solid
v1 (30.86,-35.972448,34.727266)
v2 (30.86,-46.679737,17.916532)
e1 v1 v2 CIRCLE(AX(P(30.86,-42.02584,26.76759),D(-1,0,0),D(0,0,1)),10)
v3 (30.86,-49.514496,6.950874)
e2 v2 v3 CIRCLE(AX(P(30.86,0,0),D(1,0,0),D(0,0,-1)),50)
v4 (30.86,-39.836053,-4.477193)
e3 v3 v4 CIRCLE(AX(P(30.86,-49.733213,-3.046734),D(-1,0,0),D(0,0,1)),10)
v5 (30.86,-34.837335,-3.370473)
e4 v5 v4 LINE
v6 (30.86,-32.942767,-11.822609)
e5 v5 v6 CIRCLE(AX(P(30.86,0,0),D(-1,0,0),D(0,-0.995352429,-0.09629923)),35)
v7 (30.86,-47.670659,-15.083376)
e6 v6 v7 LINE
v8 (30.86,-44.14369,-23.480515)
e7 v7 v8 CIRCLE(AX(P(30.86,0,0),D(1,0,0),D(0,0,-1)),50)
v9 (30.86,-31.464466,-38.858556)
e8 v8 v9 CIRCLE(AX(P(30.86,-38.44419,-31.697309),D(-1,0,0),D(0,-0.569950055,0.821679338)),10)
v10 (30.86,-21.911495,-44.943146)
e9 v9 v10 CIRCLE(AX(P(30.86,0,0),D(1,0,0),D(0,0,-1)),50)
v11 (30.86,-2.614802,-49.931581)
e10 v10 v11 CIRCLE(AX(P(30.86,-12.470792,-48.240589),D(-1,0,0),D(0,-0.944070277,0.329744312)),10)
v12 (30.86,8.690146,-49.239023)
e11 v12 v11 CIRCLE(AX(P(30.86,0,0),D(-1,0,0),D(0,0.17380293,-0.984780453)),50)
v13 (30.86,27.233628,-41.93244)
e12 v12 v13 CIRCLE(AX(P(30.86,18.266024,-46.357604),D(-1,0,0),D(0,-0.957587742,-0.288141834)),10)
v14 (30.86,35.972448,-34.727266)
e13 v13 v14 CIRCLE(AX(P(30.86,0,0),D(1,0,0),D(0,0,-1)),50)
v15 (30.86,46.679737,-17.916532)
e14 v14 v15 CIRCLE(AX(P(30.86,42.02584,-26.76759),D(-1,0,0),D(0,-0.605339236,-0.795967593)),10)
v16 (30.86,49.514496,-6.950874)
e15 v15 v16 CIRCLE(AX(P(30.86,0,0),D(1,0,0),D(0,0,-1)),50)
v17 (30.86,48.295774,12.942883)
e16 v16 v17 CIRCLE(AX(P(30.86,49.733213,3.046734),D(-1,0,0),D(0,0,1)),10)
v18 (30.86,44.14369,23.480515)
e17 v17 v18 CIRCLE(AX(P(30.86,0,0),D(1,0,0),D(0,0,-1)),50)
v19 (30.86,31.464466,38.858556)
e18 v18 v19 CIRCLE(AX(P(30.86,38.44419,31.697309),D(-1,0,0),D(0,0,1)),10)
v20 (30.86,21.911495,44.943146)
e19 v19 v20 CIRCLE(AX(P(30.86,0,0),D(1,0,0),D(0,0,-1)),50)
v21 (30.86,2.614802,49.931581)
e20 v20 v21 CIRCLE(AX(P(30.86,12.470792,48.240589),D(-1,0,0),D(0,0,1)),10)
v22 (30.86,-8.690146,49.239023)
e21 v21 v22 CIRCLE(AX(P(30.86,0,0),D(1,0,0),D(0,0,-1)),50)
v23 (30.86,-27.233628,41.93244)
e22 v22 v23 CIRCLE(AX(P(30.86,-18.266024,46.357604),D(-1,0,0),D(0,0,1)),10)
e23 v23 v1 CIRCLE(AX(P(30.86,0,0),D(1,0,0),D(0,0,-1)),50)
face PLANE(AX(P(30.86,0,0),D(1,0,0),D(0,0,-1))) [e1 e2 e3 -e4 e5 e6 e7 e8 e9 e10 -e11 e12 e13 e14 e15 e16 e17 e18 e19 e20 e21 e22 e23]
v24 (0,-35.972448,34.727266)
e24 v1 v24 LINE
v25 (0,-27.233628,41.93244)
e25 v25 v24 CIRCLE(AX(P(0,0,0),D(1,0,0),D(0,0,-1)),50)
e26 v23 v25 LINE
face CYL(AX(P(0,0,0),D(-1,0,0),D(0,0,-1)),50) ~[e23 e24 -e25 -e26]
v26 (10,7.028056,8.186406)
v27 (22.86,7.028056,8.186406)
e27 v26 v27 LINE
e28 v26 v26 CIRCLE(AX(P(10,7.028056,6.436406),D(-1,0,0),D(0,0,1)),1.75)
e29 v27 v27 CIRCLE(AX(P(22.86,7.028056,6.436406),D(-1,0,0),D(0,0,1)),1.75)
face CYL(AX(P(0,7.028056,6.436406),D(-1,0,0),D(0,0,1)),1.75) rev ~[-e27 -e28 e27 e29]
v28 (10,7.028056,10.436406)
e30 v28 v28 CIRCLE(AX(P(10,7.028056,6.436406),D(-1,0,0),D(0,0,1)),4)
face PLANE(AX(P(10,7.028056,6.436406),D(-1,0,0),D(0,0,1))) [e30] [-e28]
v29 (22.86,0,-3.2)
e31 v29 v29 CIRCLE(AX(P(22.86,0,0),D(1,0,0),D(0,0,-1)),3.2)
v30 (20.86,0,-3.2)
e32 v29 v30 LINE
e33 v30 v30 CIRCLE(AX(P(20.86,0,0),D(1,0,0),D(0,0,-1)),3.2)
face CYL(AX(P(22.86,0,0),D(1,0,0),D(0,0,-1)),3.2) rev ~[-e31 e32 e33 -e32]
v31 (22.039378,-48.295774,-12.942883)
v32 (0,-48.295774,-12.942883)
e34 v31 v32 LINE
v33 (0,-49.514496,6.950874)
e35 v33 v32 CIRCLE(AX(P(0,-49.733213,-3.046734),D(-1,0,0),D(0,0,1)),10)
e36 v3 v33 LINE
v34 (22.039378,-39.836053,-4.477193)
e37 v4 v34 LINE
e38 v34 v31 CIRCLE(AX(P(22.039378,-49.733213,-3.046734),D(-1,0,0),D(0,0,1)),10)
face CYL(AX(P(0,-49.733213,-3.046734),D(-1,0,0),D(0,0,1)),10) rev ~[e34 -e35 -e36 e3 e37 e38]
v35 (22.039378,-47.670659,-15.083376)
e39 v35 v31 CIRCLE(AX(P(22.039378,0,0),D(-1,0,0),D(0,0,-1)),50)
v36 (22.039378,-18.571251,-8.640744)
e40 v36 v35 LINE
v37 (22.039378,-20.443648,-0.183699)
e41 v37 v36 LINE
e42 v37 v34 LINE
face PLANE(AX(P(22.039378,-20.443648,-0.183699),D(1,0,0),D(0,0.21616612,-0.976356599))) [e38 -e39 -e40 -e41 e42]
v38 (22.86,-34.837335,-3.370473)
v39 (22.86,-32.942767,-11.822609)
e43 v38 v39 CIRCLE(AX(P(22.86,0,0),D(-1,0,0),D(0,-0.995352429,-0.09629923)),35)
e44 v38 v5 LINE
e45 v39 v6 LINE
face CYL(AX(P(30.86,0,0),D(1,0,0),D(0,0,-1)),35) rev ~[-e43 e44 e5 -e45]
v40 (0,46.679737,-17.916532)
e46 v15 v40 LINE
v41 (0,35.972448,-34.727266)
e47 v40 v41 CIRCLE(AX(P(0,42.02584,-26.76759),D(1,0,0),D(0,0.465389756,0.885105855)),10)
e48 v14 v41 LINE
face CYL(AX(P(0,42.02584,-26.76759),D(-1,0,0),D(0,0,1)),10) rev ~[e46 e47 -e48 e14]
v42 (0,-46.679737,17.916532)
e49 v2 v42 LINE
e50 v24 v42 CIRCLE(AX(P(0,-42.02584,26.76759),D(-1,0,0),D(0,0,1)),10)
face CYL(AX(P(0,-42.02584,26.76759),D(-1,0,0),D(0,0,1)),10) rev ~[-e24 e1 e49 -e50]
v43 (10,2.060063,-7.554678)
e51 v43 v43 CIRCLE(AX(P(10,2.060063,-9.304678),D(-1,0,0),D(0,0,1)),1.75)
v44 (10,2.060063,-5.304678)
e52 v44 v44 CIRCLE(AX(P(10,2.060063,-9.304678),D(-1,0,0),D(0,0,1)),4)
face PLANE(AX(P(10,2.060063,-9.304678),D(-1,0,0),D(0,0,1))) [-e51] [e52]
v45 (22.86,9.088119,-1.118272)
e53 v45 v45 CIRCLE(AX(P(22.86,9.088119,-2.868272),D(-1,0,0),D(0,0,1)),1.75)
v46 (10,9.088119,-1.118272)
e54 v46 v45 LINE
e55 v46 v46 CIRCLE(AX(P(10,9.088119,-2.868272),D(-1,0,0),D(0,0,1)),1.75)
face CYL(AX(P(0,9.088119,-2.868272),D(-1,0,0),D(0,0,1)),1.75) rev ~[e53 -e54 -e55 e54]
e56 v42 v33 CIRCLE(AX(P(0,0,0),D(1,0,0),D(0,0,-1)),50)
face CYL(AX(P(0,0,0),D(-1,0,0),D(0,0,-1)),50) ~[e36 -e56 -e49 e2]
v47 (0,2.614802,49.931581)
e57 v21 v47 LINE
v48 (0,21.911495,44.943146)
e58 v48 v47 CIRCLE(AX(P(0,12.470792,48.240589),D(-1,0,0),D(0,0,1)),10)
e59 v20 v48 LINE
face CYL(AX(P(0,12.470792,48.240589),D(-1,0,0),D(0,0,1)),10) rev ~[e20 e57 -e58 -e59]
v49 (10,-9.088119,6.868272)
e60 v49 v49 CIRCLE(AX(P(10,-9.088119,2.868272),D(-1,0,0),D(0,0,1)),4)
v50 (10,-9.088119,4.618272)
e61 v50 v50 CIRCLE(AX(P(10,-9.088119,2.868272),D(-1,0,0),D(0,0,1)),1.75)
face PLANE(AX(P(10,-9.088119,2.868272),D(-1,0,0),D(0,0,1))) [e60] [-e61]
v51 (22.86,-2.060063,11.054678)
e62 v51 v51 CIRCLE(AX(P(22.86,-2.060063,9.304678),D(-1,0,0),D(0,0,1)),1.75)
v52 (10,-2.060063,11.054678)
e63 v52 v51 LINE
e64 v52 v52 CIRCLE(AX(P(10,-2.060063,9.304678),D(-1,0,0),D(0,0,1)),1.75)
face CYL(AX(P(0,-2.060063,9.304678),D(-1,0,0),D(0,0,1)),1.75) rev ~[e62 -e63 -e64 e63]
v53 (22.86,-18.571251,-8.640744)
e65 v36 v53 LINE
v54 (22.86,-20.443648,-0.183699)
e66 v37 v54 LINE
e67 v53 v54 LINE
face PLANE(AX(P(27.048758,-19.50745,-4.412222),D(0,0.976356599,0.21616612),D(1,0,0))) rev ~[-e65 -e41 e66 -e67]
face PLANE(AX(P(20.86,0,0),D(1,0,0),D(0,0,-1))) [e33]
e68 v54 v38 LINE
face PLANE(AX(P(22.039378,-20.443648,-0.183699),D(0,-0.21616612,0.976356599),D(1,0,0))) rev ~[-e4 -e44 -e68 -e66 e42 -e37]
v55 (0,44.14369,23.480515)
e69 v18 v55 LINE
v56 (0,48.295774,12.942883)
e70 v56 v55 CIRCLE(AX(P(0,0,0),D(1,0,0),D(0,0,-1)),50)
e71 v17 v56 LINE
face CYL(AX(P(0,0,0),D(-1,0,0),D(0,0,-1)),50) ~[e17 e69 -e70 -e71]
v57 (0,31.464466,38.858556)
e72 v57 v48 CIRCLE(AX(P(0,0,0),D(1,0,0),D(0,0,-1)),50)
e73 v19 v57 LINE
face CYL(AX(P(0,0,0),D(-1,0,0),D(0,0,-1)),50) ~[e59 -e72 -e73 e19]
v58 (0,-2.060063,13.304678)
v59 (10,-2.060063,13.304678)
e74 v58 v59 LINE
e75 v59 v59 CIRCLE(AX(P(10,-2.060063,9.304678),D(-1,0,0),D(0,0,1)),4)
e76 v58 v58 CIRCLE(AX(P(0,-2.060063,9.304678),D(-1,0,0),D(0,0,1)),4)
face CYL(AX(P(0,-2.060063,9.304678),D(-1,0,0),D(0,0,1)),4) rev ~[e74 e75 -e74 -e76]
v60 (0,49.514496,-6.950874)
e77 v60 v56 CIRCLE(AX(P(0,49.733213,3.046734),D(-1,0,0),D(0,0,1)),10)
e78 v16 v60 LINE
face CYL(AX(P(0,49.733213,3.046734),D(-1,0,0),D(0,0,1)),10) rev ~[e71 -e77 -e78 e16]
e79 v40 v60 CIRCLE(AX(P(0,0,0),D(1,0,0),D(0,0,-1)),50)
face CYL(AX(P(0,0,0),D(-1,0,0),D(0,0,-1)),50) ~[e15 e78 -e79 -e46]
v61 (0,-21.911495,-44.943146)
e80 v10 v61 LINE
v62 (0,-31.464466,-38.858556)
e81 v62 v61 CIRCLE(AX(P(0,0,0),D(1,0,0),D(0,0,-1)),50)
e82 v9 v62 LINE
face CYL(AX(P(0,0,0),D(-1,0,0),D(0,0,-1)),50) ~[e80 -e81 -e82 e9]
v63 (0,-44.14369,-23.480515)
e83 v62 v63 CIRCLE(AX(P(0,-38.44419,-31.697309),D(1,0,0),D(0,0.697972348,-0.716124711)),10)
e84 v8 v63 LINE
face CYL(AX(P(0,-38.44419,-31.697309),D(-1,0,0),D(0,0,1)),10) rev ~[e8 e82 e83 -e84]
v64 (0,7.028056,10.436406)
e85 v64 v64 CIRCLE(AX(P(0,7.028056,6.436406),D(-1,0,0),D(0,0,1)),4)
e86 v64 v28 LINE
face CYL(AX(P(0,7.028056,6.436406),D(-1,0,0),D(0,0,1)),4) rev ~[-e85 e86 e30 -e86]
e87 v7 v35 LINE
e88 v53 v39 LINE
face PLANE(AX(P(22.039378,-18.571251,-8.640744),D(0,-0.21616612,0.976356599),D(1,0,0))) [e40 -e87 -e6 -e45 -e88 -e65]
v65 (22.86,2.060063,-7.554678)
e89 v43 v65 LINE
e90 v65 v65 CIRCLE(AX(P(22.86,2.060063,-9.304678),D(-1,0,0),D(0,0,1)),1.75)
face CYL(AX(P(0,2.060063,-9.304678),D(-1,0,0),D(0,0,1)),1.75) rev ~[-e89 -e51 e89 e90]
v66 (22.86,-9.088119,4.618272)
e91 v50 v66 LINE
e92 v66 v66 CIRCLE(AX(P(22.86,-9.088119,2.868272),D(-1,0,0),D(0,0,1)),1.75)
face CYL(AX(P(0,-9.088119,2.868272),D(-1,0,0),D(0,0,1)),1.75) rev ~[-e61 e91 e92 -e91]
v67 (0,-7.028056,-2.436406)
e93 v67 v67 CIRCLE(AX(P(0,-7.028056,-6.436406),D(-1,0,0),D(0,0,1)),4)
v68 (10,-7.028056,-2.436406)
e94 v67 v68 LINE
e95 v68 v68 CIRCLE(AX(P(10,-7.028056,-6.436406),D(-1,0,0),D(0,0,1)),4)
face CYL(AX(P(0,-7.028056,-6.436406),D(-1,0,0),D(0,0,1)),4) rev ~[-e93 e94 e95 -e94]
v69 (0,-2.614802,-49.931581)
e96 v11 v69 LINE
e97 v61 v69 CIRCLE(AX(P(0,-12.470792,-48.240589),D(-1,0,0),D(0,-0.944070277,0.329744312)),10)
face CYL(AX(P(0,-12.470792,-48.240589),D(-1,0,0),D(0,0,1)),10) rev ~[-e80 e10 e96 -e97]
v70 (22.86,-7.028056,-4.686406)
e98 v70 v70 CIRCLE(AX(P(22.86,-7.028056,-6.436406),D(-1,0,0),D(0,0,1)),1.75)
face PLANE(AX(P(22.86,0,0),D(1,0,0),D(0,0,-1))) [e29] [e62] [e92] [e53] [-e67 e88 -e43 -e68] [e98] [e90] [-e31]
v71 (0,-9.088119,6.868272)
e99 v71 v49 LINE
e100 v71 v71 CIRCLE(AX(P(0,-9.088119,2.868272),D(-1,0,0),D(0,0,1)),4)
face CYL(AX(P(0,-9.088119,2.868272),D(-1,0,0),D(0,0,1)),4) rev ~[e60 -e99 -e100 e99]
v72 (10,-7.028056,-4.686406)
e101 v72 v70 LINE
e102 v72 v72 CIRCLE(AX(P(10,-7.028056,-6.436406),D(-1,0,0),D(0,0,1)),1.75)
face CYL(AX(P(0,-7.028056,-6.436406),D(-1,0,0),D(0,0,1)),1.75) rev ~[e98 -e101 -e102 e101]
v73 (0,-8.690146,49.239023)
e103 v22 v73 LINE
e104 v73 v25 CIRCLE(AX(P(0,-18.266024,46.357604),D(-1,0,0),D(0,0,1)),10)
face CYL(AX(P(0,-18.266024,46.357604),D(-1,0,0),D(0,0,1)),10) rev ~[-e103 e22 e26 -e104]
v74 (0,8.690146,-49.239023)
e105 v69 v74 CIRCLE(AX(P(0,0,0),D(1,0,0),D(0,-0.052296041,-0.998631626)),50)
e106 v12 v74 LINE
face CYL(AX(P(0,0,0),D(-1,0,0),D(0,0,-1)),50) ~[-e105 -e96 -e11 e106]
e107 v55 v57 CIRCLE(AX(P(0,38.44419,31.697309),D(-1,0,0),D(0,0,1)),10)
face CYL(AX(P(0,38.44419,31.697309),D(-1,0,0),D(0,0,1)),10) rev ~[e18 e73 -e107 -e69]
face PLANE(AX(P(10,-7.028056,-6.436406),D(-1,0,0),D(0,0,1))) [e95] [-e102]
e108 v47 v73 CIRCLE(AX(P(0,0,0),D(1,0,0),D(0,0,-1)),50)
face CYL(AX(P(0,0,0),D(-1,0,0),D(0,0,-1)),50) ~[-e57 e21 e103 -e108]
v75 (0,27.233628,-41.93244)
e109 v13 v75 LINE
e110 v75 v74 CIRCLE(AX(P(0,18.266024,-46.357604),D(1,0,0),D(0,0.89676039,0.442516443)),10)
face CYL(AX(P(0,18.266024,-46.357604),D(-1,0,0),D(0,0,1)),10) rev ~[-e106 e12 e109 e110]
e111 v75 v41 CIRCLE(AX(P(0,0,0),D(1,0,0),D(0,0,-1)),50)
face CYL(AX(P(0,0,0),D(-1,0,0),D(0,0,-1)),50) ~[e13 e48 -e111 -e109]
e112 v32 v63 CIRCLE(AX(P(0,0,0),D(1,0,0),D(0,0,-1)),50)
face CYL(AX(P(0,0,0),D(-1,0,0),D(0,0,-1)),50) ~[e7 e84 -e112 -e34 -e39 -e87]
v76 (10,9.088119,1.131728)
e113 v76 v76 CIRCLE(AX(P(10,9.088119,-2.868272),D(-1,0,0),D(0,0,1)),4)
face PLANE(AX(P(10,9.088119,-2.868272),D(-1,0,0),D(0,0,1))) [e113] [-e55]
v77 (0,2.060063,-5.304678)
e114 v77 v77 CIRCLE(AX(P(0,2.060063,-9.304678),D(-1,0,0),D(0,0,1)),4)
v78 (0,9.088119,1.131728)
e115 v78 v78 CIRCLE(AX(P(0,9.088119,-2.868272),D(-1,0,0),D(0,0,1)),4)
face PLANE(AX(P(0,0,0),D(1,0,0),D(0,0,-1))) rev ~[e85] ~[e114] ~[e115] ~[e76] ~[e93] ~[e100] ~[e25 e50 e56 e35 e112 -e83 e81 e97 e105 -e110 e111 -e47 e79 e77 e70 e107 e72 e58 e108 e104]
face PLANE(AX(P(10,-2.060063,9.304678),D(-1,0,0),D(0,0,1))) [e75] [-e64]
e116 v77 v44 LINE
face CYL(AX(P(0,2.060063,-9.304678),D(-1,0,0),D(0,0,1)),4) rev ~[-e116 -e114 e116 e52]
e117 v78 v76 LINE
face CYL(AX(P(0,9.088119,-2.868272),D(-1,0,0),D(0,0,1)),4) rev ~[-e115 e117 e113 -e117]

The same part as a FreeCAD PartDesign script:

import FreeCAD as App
import Part
import Sketcher

V = App.Vector
Q = App.Units.Quantity


def add_polygon(sketch, points):
    """Adds a closed chain of lines whose ends are joined by coincident constraints."""
    first, n = sketch.GeometryCount, len(points)
    for a, b in zip(points, points[1:] + points[:1]):
        sketch.addGeometry(Part.LineSegment(App.Vector(*a, 0), App.Vector(*b, 0)), False)
    for i in range(n):
        sketch.addConstraint(Sketcher.Constraint("Coincident", first + i, 2, first + (i + 1) % n, 1))

doc = App.newDocument("Part")
body = doc.addObject("PartDesign::Body", "Body")

sketch1 = doc.addObject("Sketcher::SketchObject", "Sketch")
body.addObject(sketch1)
sketch1.AttachmentSupport = (doc.YZ_Plane, [""])
sketch1.MapMode = "FlatFace"
sketch1.addGeometry(Part.Circle(V(0, 0, 0), V(0, 0, 1), 50), False)
sketch1.addConstraint([
    Sketcher.Constraint("Coincident", 0, 3, -1, 1),
    Sketcher.Constraint("Diameter", 0, Q("100 mm")),
])
pad1 = doc.addObject("PartDesign::Pad", "Pad")
body.addObject(pad1)
pad1.Profile = sketch1
pad1.Length = 30.86

sketch2 = doc.addObject("Sketcher::SketchObject", "Sketch001")
body.addObject(sketch2)
sketch2.AttachmentSupport = (doc.YZ_Plane, [""])
sketch2.MapMode = "FlatFace"
sketch2.AttachmentOffset = App.Placement(V(0, 0, 30.86), App.Rotation())
sketch2.addGeometry(Part.Circle(V(0, 0, 0), V(0, 0, 1), 35), False)
sketch2.addConstraint([
    Sketcher.Constraint("Coincident", 0, 3, -1, 1),
    Sketcher.Constraint("Diameter", 0, Q("70 mm")),
])
pocket1 = doc.addObject("PartDesign::Pocket", "Pocket")
body.addObject(pocket1)
pocket1.Profile = sketch2
pocket1.Length = 8

sketch3 = doc.addObject("Sketcher::SketchObject", "Sketch002")
body.addObject(sketch3)
sketch3.Placement = App.Placement(V(0, -19.527132, -4.323322), App.Rotation(V(1, 0, 0), V(0, 0.21616612, -0.976356599), V(0, 0.976356599, 0.21616612), "ZXY"))
add_polygon(sketch3, [(22, 4), (22, -4), (32, -4), (32, 4)])
sketch3.addConstraint([
    Sketcher.Constraint("Vertical", 0),
    Sketcher.Constraint("Horizontal", 1),
    Sketcher.Constraint("Vertical", 2),
    Sketcher.Constraint("Horizontal", 3),
    Sketcher.Constraint("DistanceX", 1, 1, 1, 2, Q("10.01876 mm")),
    Sketcher.Constraint("DistanceY", 0, 2, 0, 1, Q("8.66184 mm")),
    Sketcher.Constraint("DistanceX", -1, 1, 0, 2, Q("22.039378 mm")),
    Sketcher.Constraint("DistanceY", 0, 2, -1, 1, Q("4.239868 mm")),
])
pocket2 = doc.addObject("PartDesign::Pocket", "Pocket001")
body.addObject(pocket2)
pocket2.Profile = sketch3
pocket2.Length = 60

sketch4 = doc.addObject("Sketcher::SketchObject", "Sketch003")
body.addObject(sketch4)
sketch4.AttachmentSupport = (doc.YZ_Plane, [""])
sketch4.MapMode = "FlatFace"
sketch4.AttachmentOffset = App.Placement(V(0, 0, 22.86), App.Rotation())
sketch4.addGeometry(Part.Circle(V(0, 0, 0), V(0, 0, 1), 3.2), False)
sketch4.addConstraint([
    Sketcher.Constraint("Coincident", 0, 3, -1, 1),
    Sketcher.Constraint("Diameter", 0, Q("6.4 mm")),
])
pocket3 = doc.addObject("PartDesign::Pocket", "Pocket002")
body.addObject(pocket3)
pocket3.Profile = sketch4
pocket3.Length = 2

sketch5 = doc.addObject("Sketcher::SketchObject", "Sketch004")
body.addObject(sketch5)
sketch5.AttachmentSupport = (doc.YZ_Plane, [""])
sketch5.MapMode = "FlatFace"
sketch5.addGeometry([
    Part.Circle(V(-9.1, 2.9, 0), V(0, 0, 1), 1.8),
    Part.Circle(V(-7, -6.4, 0), V(0, 0, 1), 1.8),
    Part.Circle(V(2.1, -9.3, 0), V(0, 0, 1), 1.8),
    Part.Circle(V(9.1, -2.9, 0), V(0, 0, 1), 1.8),
    Part.Circle(V(7, 6.4, 0), V(0, 0, 1), 1.8),
    Part.Circle(V(-2.1, 9.3, 0), V(0, 0, 1), 1.8),
], False)
sketch5.addConstraint([
    Sketcher.Constraint("Equal", 0, 1),
    Sketcher.Constraint("Equal", 1, 2),
    Sketcher.Constraint("Equal", 2, 3),
    Sketcher.Constraint("Equal", 3, 4),
    Sketcher.Constraint("Equal", 4, 5),
    Sketcher.Constraint("Symmetric", 0, 3, 3, 3, -1, 1),
    Sketcher.Constraint("Symmetric", 1, 3, 4, 3, -1, 1),
    Sketcher.Constraint("Symmetric", 2, 3, 5, 3, -1, 1),
    Sketcher.Constraint("Diameter", 0, Q("3.5 mm")),
    Sketcher.Constraint("DistanceX", 0, 3, -1, 1, Q("9.088119 mm")),
    Sketcher.Constraint("DistanceY", 2, 3, -1, 1, Q("9.304678 mm")),
    Sketcher.Constraint("DistanceY", 1, 3, 0, 3, Q("9.304678 mm")),
    Sketcher.Constraint("DistanceX", 1, 3, 2, 3, Q("9.088119 mm")),
    Sketcher.Constraint("DistanceY", 2, 3, 0, 3, Q("12.172951 mm")),
    Sketcher.Constraint("DistanceX", 1, 3, -1, 1, Q("7.028056 mm")),
])
pocket4 = doc.addObject("PartDesign::Pocket", "Pocket003")
body.addObject(pocket4)
pocket4.Profile = sketch5
pocket4.Length = 30
pocket4.Reversed = True

sketch6 = doc.addObject("Sketcher::SketchObject", "Sketch005")
body.addObject(sketch6)
sketch6.AttachmentSupport = (doc.YZ_Plane, [""])
sketch6.MapMode = "FlatFace"
sketch6.addGeometry([
    Part.Circle(V(9.1, -2.9, 0), V(0, 0, 1), 4),
    Part.Circle(V(7, 6.4, 0), V(0, 0, 1), 4),
    Part.Circle(V(-2.1, 9.3, 0), V(0, 0, 1), 4),
    Part.Circle(V(-9.1, 2.9, 0), V(0, 0, 1), 4),
    Part.Circle(V(-7, -6.4, 0), V(0, 0, 1), 4),
    Part.Circle(V(2.1, -9.3, 0), V(0, 0, 1), 4),
], False)
sketch6.addConstraint([
    Sketcher.Constraint("Equal", 0, 1),
    Sketcher.Constraint("Equal", 1, 2),
    Sketcher.Constraint("Equal", 2, 3),
    Sketcher.Constraint("Equal", 3, 4),
    Sketcher.Constraint("Equal", 4, 5),
    Sketcher.Constraint("Symmetric", 0, 3, 3, 3, -1, 1),
    Sketcher.Constraint("Symmetric", 1, 3, 4, 3, -1, 1),
    Sketcher.Constraint("Symmetric", 2, 3, 5, 3, -1, 1),
    Sketcher.Constraint("Diameter", 0, Q("8 mm")),
    Sketcher.Constraint("DistanceX", -1, 1, 0, 3, Q("9.088119 mm")),
    Sketcher.Constraint("DistanceY", -1, 1, 2, 3, Q("9.304678 mm")),
    Sketcher.Constraint("DistanceY", 0, 3, 1, 3, Q("9.304678 mm")),
    Sketcher.Constraint("DistanceX", 2, 3, 1, 3, Q("9.088119 mm")),
    Sketcher.Constraint("DistanceY", 0, 3, 2, 3, Q("12.172951 mm")),
    Sketcher.Constraint("DistanceX", -1, 1, 1, 3, Q("7.028056 mm")),
])
pocket5 = doc.addObject("PartDesign::Pocket", "Pocket004")
body.addObject(pocket5)
pocket5.Profile = sketch6
pocket5.Length = 10
pocket5.Reversed = True

sketch7 = doc.addObject("Sketcher::SketchObject", "Sketch006")
body.addObject(sketch7)
sketch7.AttachmentSupport = (doc.YZ_Plane, [""])
sketch7.MapMode = "FlatFace"
sketch7.addGeometry([
    Part.Circle(V(12, 48, 0), V(0, 0, 1), 10),
    Part.Circle(V(-18, 46, 0), V(0, 0, 1), 10),
    Part.Circle(V(-42, 27, 0), V(0, 0, 1), 10),
    Part.Circle(V(-50, -3, 0), V(0, 0, 1), 10),
    Part.Circle(V(-38, -32, 0), V(0, 0, 1), 10),
    Part.Circle(V(-12, -48, 0), V(0, 0, 1), 10),
    Part.Circle(V(18, -46, 0), V(0, 0, 1), 10),
    Part.Circle(V(42, -27, 0), V(0, 0, 1), 10),
    Part.Circle(V(50, 3, 0), V(0, 0, 1), 10),
    Part.Circle(V(38, 32, 0), V(0, 0, 1), 10),
], False)
sketch7.addConstraint([
    Sketcher.Constraint("Equal", 0, 1),
    Sketcher.Constraint("Equal", 1, 2),
    Sketcher.Constraint("Equal", 2, 3),
    Sketcher.Constraint("Equal", 3, 4),
    Sketcher.Constraint("Equal", 4, 5),
    Sketcher.Constraint("Equal", 5, 6),
    Sketcher.Constraint("Equal", 6, 7),
    Sketcher.Constraint("Equal", 7, 8),
    Sketcher.Constraint("Equal", 8, 9),
    Sketcher.Constraint("Symmetric", 0, 3, 5, 3, -1, 1),
    Sketcher.Constraint("Symmetric", 1, 3, 6, 3, -1, 1),
    Sketcher.Constraint("Symmetric", 2, 3, 7, 3, -1, 1),
    Sketcher.Constraint("Symmetric", 3, 3, 8, 3, -1, 1),
    Sketcher.Constraint("Symmetric", 4, 3, 9, 3, -1, 1),
    Sketcher.Constraint("Diameter", 0, Q("20 mm")),
    Sketcher.Constraint("DistanceY", 2, 3, 0, 3, Q("21.472999 mm")),
    Sketcher.Constraint("DistanceY", 4, 3, 2, 3, Q("58.464899 mm")),
    Sketcher.Constraint("DistanceY", -1, 1, 0, 3, Q("48.240589 mm")),
    Sketcher.Constraint("DistanceX", 2, 3, -1, 1, Q("42.02584 mm")),
    Sketcher.Constraint("DistanceX", 4, 3, -1, 1, Q("38.44419 mm")),
    Sketcher.Constraint("DistanceX", 3, 3, 1, 3, Q("31.46719 mm")),
    Sketcher.Constraint("DistanceX", 3, 3, 5, 3, Q("37.262421 mm")),
    Sketcher.Constraint("DistanceY", 6, 3, 3, 3, Q("43.310871 mm")),
    Sketcher.Constraint("DistanceX", -1, 1, 0, 3, Q("12.470792 mm")),
    Sketcher.Constraint("DistanceY", -1, 1, 1, 3, Q("46.357604 mm")),
])
pocket6 = doc.addObject("PartDesign::Pocket", "Pocket005")
body.addObject(pocket6)
pocket6.Profile = sketch7
pocket6.Length = 40
pocket6.Reversed = True

doc.recompute()
